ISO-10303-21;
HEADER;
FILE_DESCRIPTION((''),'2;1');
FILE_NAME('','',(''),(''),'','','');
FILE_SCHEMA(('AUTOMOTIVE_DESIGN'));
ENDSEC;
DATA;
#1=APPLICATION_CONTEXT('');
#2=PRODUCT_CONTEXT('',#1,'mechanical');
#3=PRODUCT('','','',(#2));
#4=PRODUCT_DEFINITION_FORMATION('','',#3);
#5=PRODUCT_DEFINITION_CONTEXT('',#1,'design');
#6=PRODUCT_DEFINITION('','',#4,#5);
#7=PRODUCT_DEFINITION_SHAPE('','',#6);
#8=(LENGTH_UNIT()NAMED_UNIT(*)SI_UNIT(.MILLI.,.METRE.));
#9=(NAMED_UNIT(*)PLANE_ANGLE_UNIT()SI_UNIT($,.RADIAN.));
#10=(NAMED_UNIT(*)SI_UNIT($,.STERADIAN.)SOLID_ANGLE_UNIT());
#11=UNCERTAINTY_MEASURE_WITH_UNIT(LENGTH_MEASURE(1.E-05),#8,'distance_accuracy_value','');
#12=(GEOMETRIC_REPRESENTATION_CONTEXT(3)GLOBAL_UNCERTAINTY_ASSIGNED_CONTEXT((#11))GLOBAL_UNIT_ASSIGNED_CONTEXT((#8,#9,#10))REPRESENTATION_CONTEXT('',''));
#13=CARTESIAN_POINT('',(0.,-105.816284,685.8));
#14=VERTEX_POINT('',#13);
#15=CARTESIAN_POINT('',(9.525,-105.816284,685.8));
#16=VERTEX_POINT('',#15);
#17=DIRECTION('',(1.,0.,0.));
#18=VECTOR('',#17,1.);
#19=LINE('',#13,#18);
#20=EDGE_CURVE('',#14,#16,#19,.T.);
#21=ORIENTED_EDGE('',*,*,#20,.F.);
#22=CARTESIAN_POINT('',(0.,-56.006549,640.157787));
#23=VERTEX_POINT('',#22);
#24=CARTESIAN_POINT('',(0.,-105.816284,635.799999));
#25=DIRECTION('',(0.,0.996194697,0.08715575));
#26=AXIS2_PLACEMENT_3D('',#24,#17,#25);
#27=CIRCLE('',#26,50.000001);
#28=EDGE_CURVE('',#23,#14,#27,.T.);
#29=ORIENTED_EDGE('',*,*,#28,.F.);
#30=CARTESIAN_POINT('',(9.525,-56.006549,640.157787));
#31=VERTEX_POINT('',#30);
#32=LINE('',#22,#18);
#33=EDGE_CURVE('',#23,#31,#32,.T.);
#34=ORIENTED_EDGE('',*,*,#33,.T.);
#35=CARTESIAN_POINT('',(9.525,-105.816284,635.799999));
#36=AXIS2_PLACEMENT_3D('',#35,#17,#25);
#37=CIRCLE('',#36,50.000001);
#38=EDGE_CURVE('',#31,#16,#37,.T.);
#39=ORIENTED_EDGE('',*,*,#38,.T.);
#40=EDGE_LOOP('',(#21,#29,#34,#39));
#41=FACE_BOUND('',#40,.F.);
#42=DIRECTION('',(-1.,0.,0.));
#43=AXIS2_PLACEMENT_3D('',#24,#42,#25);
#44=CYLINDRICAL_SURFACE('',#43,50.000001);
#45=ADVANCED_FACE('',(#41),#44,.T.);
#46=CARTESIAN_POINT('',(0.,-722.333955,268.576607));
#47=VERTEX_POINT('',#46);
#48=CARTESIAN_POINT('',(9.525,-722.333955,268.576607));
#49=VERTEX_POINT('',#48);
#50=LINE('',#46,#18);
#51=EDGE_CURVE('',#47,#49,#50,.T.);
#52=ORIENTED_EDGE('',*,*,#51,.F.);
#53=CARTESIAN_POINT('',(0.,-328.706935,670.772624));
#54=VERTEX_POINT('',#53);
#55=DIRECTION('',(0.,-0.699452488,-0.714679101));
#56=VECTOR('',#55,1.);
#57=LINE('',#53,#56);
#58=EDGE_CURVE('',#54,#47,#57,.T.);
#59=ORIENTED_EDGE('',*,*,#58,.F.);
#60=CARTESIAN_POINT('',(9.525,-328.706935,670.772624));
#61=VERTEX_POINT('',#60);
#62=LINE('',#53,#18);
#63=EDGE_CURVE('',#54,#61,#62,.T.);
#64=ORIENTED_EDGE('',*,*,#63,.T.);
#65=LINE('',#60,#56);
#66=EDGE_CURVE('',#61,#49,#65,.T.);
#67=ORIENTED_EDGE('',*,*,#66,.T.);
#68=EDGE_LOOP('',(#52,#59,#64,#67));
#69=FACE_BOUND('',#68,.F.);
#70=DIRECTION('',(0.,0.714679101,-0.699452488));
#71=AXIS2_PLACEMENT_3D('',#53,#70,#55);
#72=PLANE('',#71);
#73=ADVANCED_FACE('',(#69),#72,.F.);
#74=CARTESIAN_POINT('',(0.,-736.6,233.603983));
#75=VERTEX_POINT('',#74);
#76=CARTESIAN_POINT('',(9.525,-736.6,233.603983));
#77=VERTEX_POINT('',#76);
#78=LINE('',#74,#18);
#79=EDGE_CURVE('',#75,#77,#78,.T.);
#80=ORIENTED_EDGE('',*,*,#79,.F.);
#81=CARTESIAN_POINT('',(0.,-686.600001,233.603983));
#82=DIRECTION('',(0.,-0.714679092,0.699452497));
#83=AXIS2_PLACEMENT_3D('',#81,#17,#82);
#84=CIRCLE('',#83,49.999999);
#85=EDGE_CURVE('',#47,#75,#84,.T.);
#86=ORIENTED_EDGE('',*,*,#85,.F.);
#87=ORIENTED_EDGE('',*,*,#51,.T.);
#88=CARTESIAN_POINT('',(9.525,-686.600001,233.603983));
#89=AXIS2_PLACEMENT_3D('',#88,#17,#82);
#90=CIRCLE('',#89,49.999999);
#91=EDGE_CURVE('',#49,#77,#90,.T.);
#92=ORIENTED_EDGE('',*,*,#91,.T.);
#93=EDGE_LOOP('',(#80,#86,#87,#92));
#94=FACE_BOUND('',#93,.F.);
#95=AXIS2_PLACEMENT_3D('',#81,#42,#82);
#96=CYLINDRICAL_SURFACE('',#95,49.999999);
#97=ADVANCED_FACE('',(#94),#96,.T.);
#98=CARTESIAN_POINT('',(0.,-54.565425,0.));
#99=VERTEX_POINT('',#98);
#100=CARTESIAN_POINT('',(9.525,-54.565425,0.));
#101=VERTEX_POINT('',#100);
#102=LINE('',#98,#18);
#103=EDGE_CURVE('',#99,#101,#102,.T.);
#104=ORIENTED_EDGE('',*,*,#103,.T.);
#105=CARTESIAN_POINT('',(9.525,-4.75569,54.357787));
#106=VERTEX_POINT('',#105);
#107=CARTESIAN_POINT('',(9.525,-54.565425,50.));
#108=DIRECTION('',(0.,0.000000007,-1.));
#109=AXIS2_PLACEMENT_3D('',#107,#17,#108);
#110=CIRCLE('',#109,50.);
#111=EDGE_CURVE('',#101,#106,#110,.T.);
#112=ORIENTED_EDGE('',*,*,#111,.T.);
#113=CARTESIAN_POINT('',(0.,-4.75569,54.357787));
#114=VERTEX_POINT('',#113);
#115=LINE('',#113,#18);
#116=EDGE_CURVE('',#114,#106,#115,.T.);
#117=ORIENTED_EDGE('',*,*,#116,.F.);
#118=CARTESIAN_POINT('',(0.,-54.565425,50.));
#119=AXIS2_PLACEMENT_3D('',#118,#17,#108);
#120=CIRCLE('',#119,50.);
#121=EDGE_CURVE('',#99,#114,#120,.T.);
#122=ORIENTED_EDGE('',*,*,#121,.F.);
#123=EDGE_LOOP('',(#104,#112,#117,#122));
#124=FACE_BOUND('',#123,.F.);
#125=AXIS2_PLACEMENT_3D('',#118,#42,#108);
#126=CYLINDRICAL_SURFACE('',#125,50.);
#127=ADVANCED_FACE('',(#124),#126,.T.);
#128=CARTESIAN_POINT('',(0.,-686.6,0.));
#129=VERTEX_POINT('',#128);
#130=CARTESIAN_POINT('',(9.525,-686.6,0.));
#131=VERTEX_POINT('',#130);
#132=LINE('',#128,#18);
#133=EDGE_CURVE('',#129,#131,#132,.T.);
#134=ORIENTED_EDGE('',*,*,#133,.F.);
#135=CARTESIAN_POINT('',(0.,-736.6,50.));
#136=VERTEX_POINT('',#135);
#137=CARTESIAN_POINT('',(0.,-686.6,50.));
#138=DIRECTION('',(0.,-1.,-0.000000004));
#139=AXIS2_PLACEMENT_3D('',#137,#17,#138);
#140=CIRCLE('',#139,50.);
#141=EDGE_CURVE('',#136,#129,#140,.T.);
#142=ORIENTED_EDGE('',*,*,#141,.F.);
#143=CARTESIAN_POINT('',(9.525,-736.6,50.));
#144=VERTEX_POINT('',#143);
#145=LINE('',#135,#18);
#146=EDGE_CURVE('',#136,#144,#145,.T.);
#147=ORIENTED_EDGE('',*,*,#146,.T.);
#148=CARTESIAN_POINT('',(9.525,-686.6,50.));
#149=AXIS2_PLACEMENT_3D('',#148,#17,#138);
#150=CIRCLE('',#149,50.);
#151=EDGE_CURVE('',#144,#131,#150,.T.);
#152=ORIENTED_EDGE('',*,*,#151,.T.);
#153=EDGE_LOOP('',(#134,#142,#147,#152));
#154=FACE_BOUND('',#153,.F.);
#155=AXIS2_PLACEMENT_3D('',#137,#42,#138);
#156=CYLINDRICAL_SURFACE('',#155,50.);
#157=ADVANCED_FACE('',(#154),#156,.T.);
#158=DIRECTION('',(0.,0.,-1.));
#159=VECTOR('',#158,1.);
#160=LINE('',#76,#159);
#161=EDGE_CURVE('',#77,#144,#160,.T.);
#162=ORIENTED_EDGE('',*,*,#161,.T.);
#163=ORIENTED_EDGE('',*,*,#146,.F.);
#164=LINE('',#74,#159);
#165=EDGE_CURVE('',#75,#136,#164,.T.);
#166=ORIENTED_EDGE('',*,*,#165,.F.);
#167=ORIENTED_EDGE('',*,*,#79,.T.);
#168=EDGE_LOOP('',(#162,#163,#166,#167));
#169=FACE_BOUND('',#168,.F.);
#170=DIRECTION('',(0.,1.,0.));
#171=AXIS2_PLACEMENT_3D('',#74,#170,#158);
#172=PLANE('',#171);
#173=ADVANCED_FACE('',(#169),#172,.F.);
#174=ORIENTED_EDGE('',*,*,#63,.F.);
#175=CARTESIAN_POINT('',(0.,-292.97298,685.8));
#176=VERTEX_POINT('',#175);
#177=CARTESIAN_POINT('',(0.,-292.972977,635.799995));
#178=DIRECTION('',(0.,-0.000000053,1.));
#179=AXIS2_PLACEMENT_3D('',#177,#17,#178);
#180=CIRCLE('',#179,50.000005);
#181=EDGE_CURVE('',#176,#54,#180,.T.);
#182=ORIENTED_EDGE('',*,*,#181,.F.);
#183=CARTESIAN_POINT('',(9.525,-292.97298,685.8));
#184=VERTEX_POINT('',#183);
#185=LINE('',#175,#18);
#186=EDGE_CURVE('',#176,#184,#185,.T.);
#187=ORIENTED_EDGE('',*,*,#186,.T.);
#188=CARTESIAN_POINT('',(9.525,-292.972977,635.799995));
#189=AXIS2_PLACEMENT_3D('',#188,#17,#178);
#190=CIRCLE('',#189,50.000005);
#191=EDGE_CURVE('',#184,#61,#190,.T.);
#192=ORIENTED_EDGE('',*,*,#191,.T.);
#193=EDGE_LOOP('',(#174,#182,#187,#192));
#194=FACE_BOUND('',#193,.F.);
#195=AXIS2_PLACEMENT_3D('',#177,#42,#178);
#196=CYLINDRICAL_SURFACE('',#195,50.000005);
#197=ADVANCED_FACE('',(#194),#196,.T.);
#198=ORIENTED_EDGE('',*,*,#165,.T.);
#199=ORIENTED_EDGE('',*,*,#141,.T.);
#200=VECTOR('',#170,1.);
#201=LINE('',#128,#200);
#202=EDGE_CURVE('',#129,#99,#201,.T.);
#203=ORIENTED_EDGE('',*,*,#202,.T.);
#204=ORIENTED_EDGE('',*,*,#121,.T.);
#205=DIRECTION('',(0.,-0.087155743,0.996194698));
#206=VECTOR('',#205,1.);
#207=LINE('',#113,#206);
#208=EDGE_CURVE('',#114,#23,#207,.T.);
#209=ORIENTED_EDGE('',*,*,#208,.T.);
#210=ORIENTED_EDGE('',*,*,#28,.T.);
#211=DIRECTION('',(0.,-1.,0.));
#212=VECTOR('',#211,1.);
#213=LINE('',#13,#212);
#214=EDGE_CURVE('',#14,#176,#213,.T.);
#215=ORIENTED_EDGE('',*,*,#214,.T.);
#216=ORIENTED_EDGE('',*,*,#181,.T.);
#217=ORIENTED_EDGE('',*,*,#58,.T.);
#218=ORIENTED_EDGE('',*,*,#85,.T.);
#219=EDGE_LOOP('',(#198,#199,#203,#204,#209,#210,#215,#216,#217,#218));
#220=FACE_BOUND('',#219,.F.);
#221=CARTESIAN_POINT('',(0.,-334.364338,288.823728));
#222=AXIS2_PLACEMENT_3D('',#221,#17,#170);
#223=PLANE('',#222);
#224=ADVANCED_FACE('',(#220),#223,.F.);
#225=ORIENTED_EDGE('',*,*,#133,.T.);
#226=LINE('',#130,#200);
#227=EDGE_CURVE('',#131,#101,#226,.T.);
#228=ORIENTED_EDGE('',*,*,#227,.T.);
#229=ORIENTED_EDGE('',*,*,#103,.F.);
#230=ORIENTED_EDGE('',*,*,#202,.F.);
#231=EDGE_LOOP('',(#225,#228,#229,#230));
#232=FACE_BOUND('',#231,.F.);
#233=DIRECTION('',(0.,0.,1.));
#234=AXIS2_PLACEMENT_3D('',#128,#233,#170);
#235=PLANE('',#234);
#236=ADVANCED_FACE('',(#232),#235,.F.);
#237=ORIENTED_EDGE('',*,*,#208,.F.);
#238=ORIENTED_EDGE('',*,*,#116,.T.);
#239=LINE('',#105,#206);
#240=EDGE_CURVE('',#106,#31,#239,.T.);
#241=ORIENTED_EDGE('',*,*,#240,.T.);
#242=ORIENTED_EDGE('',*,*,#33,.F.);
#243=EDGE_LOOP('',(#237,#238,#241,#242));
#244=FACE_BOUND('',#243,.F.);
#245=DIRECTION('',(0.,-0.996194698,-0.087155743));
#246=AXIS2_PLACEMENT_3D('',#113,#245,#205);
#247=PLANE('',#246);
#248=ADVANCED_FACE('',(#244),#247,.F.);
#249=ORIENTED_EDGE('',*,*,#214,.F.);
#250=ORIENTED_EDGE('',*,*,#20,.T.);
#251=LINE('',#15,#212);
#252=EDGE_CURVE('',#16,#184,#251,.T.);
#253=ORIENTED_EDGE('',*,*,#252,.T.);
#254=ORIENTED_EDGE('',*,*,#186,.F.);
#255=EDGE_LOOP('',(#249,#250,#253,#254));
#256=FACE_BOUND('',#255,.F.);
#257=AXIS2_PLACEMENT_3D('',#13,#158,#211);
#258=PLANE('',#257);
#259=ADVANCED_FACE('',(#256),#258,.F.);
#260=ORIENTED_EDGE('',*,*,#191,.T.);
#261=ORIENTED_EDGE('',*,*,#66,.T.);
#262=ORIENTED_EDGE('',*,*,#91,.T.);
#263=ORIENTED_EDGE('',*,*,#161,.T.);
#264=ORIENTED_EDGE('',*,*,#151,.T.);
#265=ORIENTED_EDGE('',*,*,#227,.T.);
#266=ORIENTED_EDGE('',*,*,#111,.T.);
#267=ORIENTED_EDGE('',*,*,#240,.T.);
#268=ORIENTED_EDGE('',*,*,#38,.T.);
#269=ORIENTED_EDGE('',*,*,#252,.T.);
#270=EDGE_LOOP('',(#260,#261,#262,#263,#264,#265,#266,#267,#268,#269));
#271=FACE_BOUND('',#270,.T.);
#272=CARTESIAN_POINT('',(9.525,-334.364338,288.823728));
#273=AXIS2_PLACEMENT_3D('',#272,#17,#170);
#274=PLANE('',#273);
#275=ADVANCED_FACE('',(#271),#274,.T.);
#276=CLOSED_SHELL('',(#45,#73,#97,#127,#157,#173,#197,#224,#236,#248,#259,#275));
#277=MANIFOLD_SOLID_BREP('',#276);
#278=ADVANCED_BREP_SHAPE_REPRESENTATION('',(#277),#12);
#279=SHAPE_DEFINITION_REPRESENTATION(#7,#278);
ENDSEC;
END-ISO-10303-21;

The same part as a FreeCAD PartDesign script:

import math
import FreeCAD as App
import Part
import Sketcher
Q = App.Units.Quantity

doc = App.newDocument("Part")
body = doc.addObject("PartDesign::Body", "Body")

sketch1 = body.newObject("Sketcher::SketchObject", "Sketch")
sketch1.AttachmentSupport = (doc.getObject("YZ_Plane"), [""])
sketch1.MapMode = "FlatFace"
sketch1.addGeometry(Part.LineSegment(App.Vector(-687, 0, 0), App.Vector(-55, 0, 0)), False)
sketch1.addGeometry(Part.ArcOfCircle(Part.Circle(App.Vector(-55, 50, 0), App.Vector(0, 0, 1), 50), math.radians(-90), math.radians(5)), False)
sketch1.addGeometry(Part.LineSegment(App.Vector(-5, 54, 0), App.Vector(-56, 640, 0)), False)
sketch1.addGeometry(Part.ArcOfCircle(Part.Circle(App.Vector(-106, 636, 0), App.Vector(0, 0, 1), 50), math.radians(5), math.radians(90)), False)
sketch1.addGeometry(Part.LineSegment(App.Vector(-106, 686, 0), App.Vector(-293, 686, 0)), False)
sketch1.addGeometry(Part.ArcOfCircle(Part.Circle(App.Vector(-293, 636, 0), App.Vector(0, 0, 1), 50), math.radians(90), math.radians(136)), False)
sketch1.addGeometry(Part.LineSegment(App.Vector(-329, 671, 0), App.Vector(-722, 269, 0)), False)
sketch1.addGeometry(Part.ArcOfCircle(Part.Circle(App.Vector(-687, 234, 0), App.Vector(0, 0, 1), 50), math.radians(136), math.radians(180)), False)
sketch1.addGeometry(Part.LineSegment(App.Vector(-737, 234, 0), App.Vector(-737, 50, 0)), False)
sketch1.addGeometry(Part.ArcOfCircle(Part.Circle(App.Vector(-687, 50, 0), App.Vector(0, 0, 1), 50), math.radians(-180), math.radians(-90)), False)
sketch1.addConstraint(Sketcher.Constraint("Tangent", 0, 2, 1, 1))
sketch1.addConstraint(Sketcher.Constraint("Tangent", 1, 2, 2, 1))
sketch1.addConstraint(Sketcher.Constraint("Tangent", 2, 2, 3, 1))
sketch1.addConstraint(Sketcher.Constraint("Tangent", 3, 2, 4, 1))
sketch1.addConstraint(Sketcher.Constraint("Tangent", 4, 2, 5, 1))
sketch1.addConstraint(Sketcher.Constraint("Tangent", 5, 2, 6, 1))
sketch1.addConstraint(Sketcher.Constraint("Tangent", 6, 2, 7, 1))
sketch1.addConstraint(Sketcher.Constraint("Tangent", 7, 2, 8, 1))
sketch1.addConstraint(Sketcher.Constraint("Tangent", 8, 2, 9, 1))
sketch1.addConstraint(Sketcher.Constraint("Tangent", 9, 2, 0, 1))
sketch1.addConstraint(Sketcher.Constraint("Horizontal", 0))
sketch1.addConstraint(Sketcher.Constraint("Horizontal", 4))
sketch1.addConstraint(Sketcher.Constraint("Vertical", 8))
sketch1.addConstraint(Sketcher.Constraint("Equal", 1, 3))
sketch1.addConstraint(Sketcher.Constraint("Equal", 3, 7))
sketch1.addConstraint(Sketcher.Constraint("Equal", 7, 9))
sketch1.addConstraint(Sketcher.Constraint("PointOnObject", 0, 2, -1))
sketch1.addConstraint(Sketcher.Constraint("Radius", 1, 50.0))
sketch1.addConstraint(Sketcher.Constraint("Angle", 2, Q("95 deg")))
sketch1.addConstraint(Sketcher.Constraint("DistanceY", -1, 1, 3, 3, 635.799999))
sketch1.addConstraint(Sketcher.Constraint("DistanceX", 7, 3, -1, 1, 686.600001))
sketch1.addConstraint(Sketcher.Constraint("Radius", 5, 50.000005))
sketch1.addConstraint(Sketcher.Constraint("DistanceX", 0, 1, 0, 2, 632.034575))
sketch1.addConstraint(Sketcher.Constraint("DistanceX", 4, 2, 4, 1, 187.156696))
sketch1.addConstraint(Sketcher.Constraint("DistanceY", 8, 2, 8, 1, 183.603983))
pad1 = body.newObject("PartDesign::Pad", "Pad")
pad1.Profile = sketch1
pad1.Length = 9.525

doc.recompute()
